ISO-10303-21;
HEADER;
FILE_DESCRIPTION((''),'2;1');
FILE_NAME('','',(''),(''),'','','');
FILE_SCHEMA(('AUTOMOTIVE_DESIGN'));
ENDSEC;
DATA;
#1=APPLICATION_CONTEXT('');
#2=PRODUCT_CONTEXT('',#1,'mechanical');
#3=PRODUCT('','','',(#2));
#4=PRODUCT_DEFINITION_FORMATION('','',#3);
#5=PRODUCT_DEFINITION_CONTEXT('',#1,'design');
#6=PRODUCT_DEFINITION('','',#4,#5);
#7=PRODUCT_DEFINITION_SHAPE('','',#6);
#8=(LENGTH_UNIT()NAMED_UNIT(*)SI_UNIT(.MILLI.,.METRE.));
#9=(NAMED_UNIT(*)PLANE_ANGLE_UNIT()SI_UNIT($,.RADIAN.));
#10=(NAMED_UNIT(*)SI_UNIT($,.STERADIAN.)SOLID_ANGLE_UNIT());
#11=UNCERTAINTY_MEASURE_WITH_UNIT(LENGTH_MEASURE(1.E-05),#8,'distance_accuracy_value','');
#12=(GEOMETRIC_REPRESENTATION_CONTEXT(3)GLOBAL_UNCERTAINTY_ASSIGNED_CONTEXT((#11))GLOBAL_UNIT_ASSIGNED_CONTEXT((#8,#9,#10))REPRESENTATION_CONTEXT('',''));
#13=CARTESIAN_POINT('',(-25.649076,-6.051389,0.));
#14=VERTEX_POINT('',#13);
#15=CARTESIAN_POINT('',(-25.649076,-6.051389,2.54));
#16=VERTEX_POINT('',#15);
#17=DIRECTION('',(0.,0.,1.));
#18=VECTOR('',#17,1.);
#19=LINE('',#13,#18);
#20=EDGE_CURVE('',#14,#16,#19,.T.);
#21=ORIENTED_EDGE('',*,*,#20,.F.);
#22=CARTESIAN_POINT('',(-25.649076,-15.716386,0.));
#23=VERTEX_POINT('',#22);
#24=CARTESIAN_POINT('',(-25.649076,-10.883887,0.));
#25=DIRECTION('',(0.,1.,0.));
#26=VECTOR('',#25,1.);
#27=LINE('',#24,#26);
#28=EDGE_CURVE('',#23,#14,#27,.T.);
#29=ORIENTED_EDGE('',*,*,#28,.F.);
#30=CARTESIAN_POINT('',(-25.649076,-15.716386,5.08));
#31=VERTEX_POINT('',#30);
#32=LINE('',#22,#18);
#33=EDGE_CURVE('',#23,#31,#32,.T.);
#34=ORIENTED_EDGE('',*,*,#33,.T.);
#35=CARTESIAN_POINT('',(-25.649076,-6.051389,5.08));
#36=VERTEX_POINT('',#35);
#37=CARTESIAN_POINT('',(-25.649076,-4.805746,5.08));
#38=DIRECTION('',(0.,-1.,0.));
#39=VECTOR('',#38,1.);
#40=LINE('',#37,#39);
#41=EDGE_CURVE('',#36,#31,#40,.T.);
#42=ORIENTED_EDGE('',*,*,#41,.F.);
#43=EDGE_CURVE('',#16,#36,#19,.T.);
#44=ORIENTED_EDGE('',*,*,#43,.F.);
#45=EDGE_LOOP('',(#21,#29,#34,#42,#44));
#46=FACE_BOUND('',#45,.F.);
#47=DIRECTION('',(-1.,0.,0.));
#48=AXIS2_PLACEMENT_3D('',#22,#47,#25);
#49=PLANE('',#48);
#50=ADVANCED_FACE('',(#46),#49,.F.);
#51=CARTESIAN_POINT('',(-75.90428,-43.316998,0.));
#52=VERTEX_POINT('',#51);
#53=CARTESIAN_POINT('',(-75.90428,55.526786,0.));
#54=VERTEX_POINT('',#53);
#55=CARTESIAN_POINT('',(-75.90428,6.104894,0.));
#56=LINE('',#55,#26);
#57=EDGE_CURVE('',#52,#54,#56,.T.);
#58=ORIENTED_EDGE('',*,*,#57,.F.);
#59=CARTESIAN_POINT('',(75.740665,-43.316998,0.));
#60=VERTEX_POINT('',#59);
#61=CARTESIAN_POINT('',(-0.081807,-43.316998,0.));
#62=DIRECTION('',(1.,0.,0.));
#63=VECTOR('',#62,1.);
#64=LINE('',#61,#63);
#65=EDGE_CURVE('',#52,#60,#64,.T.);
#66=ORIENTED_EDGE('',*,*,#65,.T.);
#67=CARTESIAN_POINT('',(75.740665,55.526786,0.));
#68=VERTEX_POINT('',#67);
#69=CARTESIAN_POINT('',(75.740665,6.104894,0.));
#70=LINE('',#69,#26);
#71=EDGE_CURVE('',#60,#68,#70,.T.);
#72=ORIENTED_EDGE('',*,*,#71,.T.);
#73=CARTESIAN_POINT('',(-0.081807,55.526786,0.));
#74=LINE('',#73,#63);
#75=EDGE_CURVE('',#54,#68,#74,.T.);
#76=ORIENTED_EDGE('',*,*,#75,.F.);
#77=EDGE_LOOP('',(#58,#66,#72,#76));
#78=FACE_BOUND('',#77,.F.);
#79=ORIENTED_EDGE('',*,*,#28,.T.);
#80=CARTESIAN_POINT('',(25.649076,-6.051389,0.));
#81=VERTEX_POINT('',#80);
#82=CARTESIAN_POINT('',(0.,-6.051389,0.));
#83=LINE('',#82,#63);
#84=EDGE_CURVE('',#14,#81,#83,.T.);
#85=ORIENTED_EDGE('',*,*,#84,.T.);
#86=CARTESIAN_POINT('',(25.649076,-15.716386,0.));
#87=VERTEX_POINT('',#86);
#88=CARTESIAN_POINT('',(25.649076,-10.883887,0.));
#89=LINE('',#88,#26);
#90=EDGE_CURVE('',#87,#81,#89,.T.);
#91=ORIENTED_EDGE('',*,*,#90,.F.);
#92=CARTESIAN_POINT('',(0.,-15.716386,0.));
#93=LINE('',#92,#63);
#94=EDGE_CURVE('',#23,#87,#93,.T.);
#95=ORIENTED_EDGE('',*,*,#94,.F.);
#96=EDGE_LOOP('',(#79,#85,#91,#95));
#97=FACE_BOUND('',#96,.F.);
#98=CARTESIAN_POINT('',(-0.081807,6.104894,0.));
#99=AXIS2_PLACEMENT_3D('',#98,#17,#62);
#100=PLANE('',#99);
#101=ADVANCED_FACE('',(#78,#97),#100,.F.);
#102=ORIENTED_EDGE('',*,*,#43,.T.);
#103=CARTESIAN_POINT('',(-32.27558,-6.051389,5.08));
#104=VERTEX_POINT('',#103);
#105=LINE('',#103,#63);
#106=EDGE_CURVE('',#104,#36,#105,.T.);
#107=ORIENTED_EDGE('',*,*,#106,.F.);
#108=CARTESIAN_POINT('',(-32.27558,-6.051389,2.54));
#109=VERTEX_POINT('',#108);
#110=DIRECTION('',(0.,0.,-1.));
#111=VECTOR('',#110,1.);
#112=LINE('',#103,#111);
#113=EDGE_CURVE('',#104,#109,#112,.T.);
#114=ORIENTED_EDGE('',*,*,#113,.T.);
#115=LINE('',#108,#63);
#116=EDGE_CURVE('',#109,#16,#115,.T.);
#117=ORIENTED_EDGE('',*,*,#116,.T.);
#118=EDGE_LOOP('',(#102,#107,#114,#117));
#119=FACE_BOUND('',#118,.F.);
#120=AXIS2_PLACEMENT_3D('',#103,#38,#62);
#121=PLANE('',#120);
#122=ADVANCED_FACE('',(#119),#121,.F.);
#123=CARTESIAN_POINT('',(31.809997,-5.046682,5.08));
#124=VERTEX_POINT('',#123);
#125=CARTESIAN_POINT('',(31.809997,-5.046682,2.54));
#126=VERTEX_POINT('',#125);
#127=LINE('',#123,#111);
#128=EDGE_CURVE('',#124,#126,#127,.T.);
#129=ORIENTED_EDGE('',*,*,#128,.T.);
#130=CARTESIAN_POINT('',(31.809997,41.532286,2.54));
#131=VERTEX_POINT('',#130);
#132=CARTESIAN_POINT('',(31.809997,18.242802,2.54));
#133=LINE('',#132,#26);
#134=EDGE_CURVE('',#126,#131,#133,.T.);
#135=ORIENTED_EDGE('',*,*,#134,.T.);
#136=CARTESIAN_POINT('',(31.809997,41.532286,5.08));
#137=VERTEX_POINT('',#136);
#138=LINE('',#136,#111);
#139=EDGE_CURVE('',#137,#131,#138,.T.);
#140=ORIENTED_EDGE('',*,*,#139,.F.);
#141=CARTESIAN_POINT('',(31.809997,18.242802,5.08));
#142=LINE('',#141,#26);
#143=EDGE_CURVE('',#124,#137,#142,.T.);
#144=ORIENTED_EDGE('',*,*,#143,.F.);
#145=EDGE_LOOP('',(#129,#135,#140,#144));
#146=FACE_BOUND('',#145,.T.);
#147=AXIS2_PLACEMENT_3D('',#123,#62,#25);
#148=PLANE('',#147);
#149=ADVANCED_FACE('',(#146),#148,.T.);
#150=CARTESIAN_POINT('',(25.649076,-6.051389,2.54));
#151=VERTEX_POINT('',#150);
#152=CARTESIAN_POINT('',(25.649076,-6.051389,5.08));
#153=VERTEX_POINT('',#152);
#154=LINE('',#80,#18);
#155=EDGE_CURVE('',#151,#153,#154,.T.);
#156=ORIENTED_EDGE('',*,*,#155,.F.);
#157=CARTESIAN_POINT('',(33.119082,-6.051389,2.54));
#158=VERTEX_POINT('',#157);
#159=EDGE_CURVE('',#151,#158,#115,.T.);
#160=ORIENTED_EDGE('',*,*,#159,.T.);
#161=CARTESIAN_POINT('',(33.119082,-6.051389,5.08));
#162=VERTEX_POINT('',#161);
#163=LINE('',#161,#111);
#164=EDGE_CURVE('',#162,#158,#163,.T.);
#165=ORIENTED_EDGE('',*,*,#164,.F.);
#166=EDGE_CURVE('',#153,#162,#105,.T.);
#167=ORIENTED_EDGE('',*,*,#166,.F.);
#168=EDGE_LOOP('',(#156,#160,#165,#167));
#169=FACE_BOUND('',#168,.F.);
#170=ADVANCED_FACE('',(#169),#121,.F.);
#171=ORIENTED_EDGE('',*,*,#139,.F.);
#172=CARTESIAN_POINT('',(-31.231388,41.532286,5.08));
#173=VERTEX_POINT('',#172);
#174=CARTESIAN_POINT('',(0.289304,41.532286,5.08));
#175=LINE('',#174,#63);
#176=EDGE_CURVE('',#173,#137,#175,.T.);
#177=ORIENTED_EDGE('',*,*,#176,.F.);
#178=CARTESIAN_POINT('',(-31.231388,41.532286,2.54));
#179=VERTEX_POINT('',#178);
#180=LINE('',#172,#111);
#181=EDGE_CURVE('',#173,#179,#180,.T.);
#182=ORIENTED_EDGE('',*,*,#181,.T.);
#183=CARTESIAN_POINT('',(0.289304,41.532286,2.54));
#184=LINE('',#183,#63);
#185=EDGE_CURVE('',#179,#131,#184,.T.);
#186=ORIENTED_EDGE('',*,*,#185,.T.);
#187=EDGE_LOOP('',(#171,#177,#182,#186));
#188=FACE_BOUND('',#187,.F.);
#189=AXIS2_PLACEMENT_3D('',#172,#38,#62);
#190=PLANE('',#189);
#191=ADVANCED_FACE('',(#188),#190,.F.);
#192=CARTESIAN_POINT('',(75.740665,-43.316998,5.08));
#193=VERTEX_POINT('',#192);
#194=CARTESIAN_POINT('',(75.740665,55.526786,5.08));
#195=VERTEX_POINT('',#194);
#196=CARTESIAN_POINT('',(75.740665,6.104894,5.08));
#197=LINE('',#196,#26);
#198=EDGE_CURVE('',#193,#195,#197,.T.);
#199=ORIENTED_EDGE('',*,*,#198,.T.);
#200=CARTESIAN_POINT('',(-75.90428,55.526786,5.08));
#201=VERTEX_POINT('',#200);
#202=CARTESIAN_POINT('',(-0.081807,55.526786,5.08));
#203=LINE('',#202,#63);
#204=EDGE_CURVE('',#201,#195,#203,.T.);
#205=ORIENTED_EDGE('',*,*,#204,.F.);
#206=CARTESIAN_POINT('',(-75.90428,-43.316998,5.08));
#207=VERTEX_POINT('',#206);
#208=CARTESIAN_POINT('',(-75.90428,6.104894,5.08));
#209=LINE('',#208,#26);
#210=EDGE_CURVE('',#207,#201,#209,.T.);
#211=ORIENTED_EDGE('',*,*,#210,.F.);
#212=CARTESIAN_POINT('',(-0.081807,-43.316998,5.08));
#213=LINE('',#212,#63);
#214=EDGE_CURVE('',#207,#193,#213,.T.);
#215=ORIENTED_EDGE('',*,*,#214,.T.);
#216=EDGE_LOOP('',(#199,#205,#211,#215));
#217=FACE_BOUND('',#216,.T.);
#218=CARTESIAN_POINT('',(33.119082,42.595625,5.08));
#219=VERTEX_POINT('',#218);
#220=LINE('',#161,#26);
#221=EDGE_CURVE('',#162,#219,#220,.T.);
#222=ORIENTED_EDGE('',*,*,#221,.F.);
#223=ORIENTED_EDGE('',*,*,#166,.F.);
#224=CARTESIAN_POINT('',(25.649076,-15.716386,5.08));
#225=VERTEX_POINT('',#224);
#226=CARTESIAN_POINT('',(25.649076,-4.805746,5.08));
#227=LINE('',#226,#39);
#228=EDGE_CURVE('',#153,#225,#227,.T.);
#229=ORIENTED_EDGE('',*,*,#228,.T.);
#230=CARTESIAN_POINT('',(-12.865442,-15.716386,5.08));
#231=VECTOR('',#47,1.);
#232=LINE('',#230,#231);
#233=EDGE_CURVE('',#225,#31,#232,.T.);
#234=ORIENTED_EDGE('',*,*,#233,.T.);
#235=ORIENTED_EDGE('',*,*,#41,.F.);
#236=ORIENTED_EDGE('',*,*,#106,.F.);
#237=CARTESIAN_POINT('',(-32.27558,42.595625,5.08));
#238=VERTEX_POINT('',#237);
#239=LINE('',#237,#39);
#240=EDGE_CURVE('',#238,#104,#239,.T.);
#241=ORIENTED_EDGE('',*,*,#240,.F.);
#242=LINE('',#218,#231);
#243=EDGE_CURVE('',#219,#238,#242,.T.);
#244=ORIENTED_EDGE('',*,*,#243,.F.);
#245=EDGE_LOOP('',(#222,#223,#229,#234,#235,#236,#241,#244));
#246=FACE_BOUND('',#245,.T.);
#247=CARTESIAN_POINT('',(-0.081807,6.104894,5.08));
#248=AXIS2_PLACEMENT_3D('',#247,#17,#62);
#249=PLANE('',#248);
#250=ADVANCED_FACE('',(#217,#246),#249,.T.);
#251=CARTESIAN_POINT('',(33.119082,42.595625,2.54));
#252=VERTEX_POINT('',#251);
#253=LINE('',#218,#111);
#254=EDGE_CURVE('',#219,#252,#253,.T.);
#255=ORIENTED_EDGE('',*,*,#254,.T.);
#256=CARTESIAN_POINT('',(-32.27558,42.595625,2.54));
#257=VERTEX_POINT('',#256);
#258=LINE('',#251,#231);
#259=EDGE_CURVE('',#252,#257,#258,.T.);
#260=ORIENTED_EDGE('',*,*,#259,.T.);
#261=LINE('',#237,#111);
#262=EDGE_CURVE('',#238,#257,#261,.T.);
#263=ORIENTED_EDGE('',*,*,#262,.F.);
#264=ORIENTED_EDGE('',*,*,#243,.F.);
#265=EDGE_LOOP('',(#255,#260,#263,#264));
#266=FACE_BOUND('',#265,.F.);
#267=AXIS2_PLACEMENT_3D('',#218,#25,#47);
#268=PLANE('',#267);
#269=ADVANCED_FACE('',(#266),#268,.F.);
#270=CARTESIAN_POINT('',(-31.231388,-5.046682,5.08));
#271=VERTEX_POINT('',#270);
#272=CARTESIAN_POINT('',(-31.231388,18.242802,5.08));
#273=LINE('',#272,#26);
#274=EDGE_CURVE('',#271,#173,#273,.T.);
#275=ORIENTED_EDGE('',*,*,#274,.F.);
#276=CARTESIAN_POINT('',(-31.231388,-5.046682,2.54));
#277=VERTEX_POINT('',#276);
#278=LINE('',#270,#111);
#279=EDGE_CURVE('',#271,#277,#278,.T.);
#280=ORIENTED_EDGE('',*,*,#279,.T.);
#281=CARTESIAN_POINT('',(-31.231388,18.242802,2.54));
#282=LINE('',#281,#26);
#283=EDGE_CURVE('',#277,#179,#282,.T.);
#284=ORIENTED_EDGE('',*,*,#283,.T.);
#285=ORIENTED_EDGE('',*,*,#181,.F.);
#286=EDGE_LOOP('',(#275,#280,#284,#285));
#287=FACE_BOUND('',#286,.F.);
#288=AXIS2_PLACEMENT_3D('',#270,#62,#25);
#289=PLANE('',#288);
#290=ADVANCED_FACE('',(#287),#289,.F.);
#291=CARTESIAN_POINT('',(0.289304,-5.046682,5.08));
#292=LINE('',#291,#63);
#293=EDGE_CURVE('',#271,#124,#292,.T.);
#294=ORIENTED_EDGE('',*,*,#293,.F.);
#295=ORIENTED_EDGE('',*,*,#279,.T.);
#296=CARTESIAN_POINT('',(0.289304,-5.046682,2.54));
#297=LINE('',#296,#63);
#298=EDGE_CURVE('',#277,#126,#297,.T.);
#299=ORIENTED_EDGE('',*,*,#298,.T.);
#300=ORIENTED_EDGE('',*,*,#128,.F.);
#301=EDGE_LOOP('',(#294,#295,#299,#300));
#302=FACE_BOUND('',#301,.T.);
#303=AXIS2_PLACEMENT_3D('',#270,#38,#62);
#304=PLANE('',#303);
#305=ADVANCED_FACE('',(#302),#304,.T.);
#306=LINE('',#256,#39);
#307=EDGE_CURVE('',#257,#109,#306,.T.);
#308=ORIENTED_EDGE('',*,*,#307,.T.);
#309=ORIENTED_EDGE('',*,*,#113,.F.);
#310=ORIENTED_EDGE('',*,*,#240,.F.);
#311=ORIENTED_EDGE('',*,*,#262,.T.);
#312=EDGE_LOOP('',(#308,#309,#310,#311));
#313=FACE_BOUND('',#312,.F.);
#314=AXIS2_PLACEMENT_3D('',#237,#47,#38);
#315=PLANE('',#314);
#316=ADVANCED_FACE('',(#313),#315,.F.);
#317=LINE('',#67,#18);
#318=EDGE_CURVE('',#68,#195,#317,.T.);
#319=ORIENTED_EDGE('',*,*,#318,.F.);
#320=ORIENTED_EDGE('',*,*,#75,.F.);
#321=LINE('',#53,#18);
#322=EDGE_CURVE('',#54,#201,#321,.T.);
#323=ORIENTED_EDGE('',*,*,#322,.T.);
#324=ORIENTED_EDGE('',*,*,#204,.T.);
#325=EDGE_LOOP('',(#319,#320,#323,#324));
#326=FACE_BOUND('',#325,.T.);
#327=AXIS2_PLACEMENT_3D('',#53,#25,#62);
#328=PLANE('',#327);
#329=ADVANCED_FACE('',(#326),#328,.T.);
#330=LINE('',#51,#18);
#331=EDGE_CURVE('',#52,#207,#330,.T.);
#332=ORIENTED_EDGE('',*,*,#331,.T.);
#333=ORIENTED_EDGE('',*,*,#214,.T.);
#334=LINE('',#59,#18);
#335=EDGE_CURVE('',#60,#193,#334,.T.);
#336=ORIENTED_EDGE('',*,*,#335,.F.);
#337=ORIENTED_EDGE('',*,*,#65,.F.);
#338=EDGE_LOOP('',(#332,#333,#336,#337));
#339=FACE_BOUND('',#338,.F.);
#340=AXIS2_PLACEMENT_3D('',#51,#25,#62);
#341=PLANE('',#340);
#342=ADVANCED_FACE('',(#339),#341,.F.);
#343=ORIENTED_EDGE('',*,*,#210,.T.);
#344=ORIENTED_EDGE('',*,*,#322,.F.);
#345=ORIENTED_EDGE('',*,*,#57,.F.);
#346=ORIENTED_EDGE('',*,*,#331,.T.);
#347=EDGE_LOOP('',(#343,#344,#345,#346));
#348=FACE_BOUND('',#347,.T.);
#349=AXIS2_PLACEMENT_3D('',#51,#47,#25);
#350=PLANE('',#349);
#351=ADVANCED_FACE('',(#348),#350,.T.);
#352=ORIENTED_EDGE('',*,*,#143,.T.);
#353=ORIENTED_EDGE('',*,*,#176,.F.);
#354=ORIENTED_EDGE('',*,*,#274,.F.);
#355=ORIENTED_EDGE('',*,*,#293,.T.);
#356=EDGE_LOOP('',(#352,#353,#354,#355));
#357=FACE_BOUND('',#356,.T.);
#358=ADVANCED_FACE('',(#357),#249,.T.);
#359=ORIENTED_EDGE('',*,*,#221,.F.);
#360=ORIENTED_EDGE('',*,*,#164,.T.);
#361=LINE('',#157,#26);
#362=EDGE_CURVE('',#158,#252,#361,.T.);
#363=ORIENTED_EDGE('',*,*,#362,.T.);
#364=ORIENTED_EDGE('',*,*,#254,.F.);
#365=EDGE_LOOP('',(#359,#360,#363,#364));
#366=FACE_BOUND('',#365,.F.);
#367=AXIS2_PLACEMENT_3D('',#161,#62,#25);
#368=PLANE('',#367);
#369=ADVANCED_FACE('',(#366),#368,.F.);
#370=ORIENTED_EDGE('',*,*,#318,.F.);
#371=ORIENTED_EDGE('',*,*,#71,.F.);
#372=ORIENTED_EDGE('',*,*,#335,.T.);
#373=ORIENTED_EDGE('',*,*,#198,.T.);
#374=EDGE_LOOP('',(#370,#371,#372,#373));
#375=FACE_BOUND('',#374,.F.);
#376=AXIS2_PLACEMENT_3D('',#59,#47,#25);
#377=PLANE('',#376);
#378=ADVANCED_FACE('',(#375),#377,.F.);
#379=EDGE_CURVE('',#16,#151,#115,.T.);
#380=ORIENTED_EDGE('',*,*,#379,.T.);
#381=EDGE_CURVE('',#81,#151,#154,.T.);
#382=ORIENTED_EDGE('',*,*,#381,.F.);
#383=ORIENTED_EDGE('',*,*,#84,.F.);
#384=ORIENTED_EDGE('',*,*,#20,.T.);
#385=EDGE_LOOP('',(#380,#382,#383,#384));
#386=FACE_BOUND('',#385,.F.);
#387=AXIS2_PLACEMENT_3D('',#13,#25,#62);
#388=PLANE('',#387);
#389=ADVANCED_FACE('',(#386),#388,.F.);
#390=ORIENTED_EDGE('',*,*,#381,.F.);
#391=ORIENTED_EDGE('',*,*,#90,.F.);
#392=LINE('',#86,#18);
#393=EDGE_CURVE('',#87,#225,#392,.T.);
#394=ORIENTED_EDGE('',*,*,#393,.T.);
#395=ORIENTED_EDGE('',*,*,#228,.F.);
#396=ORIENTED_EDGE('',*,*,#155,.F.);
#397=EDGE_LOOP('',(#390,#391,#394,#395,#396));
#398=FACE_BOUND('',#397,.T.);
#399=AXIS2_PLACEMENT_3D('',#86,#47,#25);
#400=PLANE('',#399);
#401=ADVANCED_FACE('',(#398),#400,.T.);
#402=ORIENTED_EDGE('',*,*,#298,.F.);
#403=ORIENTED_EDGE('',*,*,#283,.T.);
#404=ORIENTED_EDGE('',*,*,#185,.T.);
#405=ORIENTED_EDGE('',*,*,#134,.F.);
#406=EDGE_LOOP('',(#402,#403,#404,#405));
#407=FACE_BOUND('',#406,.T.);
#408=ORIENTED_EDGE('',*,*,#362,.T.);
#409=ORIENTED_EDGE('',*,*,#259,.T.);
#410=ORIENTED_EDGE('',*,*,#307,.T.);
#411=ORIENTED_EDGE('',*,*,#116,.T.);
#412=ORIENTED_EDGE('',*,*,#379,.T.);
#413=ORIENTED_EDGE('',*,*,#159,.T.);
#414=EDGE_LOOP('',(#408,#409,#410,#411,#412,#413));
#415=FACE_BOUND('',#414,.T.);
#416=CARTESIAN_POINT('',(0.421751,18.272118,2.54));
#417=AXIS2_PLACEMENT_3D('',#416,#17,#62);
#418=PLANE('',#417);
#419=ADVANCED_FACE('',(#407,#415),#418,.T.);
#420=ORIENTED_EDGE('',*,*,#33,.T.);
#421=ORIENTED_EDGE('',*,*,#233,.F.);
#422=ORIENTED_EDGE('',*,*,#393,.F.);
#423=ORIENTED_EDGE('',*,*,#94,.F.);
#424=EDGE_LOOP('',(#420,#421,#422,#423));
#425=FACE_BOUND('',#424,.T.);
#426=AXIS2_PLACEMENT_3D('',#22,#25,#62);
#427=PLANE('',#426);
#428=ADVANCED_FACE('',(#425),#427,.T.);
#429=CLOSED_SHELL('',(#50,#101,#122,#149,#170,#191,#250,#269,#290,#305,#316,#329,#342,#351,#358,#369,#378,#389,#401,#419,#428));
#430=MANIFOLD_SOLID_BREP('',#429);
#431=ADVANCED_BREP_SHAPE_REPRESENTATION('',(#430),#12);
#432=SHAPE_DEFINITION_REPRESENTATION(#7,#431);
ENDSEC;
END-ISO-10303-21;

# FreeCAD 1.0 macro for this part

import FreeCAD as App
import Part
import Sketcher
from FreeCAD import Vector
Q = App.Units.Quantity

doc = App.newDocument("Part")
params = doc.addObject("Spreadsheet::Sheet", "Params")
for row, (alias, value) in enumerate([
    ("pad1_length", "0.2 in"),
    ("pocket1_length", "0.99 in"),
    ("pocket2_length", "0.1 in"),
], start=1):
    params.set(f"A{row}", alias)
    params.set(f"B{row}", "=" + value)
    params.setAlias(f"B{row}", alias)

body = doc.addObject("PartDesign::Body", "Body")

# Sketch on XY plane
sketch1 = body.newObject("Sketcher::SketchObject", "Sketch")
sketch1.AttachmentSupport = (doc.getObject("XY_Plane"), [""])
sketch1.MapMode = "FlatFace"
sketch1.addGeometry([
    Part.LineSegment(Vector(-76, 56, 0), Vector(-76, -43, 0)),
    Part.LineSegment(Vector(-76, -43, 0), Vector(76, -43, 0)),
    Part.LineSegment(Vector(76, -43, 0), Vector(76, 56, 0)),
    Part.LineSegment(Vector(76, 56, 0), Vector(-76, 56, 0)),
], False)
sketch1.addConstraint([
    Sketcher.Constraint("Coincident", 0, 2, 1, 1),
    Sketcher.Constraint("Coincident", 1, 2, 2, 1),
    Sketcher.Constraint("Coincident", 2, 2, 3, 1),
    Sketcher.Constraint("Coincident", 3, 2, 0, 1),
    Sketcher.Constraint("Vertical", 0),
    Sketcher.Constraint("Horizontal", 1),
    Sketcher.Constraint("Vertical", 2),
    Sketcher.Constraint("Horizontal", 3),
    Sketcher.Constraint("DistanceX", 1, 1, 1, 2, Q("151.644945 mm")),
    Sketcher.Constraint("DistanceY", 0, 2, 0, 1, Q("98.843783 mm")),
    Sketcher.Constraint("DistanceX", 0, 2, -1, 1, Q("75.90428 mm")),
    Sketcher.Constraint("DistanceY", 0, 2, -1, 1, Q("43.316998 mm")),
])
pad1 = body.newObject("PartDesign::Pad", "Pad")
pad1.Profile = sketch1
pad1.setExpression("Length", "Params.pad1_length")

# Sketch on XY plane
sketch2 = body.newObject("Sketcher::SketchObject", "Sketch001")
sketch2.AttachmentSupport = (doc.getObject("XY_Plane"), [""])
sketch2.MapMode = "FlatFace"
sketch2.addGeometry([
    Part.LineSegment(Vector(-26, -6, 0), Vector(-26, -16, 0)),
    Part.LineSegment(Vector(-26, -16, 0), Vector(26, -16, 0)),
    Part.LineSegment(Vector(26, -16, 0), Vector(26, -6, 0)),
    Part.LineSegment(Vector(26, -6, 0), Vector(-26, -6, 0)),
], False)
sketch2.addConstraint([
    Sketcher.Constraint("Coincident", 0, 2, 1, 1),
    Sketcher.Constraint("Coincident", 1, 2, 2, 1),
    Sketcher.Constraint("Coincident", 2, 2, 3, 1),
    Sketcher.Constraint("Coincident", 3, 2, 0, 1),
    Sketcher.Constraint("Vertical", 0),
    Sketcher.Constraint("Horizontal", 1),
    Sketcher.Constraint("Vertical", 2),
    Sketcher.Constraint("Horizontal", 3),
    Sketcher.Constraint("DistanceX", 1, 1, 1, 2, Q("51.298153 mm")),
    Sketcher.Constraint("DistanceY", 0, 2, 0, 1, Q("9.664997 mm")),
    Sketcher.Constraint("DistanceY", 2, 2, -1, 1, Q("6.051389 mm")),
    Sketcher.Constraint("DistanceX", 0, 2, -1, 1, Q("25.649076 mm")),
])
pocket1 = body.newObject("PartDesign::Pocket", "Pocket")
pocket1.Profile = sketch2
pocket1.setExpression("Length", "Params.pocket1_length")
pocket1.Reversed = True

# Sketch on XY plane
sketch3 = body.newObject("Sketcher::SketchObject", "Sketch002")
sketch3.AttachmentSupport = (doc.getObject("XY_Plane"), [""])
sketch3.MapMode = "FlatFace"
sketch3.AttachmentOffset = App.Placement(Vector(0, 0, 0.2 * 25.4), App.Rotation())
sketch3.addGeometry([
    Part.LineSegment(Vector(-32, 43, 0), Vector(-32, -6, 0)),  # 0
    Part.LineSegment(Vector(-32, -6, 0), Vector(33, -6, 0)),  # 1
    Part.LineSegment(Vector(33, -6, 0), Vector(33, 43, 0)),  # 2
    Part.LineSegment(Vector(33, 43, 0), Vector(-32, 43, 0)),  # 3
    Part.LineSegment(Vector(32, -5, 0), Vector(-31, -5, 0)),  # 4
    Part.LineSegment(Vector(-31, -5, 0), Vector(-31, 42, 0)),  # 5
    Part.LineSegment(Vector(-31, 42, 0), Vector(32, 42, 0)),  # 6
    Part.LineSegment(Vector(32, 42, 0), Vector(32, -5, 0)),  # 7
], False)
sketch3.addConstraint([
    Sketcher.Constraint("Coincident", 0, 2, 1, 1),
    Sketcher.Constraint("Coincident", 1, 2, 2, 1),
    Sketcher.Constraint("Coincident", 2, 2, 3, 1),
    Sketcher.Constraint("Coincident", 3, 2, 0, 1),
    Sketcher.Constraint("Coincident", 4, 2, 5, 1),
    Sketcher.Constraint("Coincident", 5, 2, 6, 1),
    Sketcher.Constraint("Coincident", 6, 2, 7, 1),
    Sketcher.Constraint("Coincident", 7, 2, 4, 1),
    Sketcher.Constraint("Vertical", 0),
    Sketcher.Constraint("Horizontal", 1),
    Sketcher.Constraint("Vertical", 2),
    Sketcher.Constraint("Horizontal", 3),
    Sketcher.Constraint("Horizontal", 4),
    Sketcher.Constraint("Vertical", 5),
    Sketcher.Constraint("Horizontal", 6),
    Sketcher.Constraint("Vertical", 7),
    Sketcher.Constraint("DistanceX", 1, 1, 1, 2, Q("65.394662 mm")),
    Sketcher.Constraint("DistanceX", 4, 2, 4, 1, Q("63.041385 mm")),
    Sketcher.Constraint("DistanceY", 0, 2, 0, 1, Q("48.647014 mm")),
    Sketcher.Constraint("DistanceY", 5, 1, 5, 2, Q("46.578968 mm")),
    Sketcher.Constraint("DistanceX", 0, 2, -1, 1, Q("32.27558 mm")),
    Sketcher.Constraint("DistanceY", 0, 2, -1, 1, Q("6.051389 mm")),
    Sketcher.Constraint("DistanceX", 4, 2, -1, 1, Q("31.231388 mm")),
    Sketcher.Constraint("DistanceY", 5, 2, 3, 2, Q("1.063339 mm")),
])
pocket2 = body.newObject("PartDesign::Pocket", "Pocket001")
pocket2.Profile = sketch3
pocket2.setExpression("Length", "Params.pocket2_length")

doc.recompute()
